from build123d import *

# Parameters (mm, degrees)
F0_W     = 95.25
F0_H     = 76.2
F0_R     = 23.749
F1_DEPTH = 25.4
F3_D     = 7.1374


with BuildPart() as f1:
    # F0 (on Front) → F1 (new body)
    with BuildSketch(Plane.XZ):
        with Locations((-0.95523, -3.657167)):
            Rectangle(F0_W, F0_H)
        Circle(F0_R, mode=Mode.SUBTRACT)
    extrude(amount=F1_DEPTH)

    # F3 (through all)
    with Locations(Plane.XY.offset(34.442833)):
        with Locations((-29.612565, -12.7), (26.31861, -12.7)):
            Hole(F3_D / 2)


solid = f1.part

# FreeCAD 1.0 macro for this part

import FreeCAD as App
import Part
import Sketcher

V = App.Vector
Q = App.Units.Quantity

doc = App.newDocument("Part")
body = doc.addObject("PartDesign::Body", "Body")

sketch1 = body.newObject("Sketcher::SketchObject", "Sketch")
sketch1.AttachmentSupport = (doc.getObject("XZ_Plane"), [""])
sketch1.MapMode = "FlatFace"
sketch1.addGeometry([
    Part.LineSegment(V(-48.58023, 34.442833, 0), V(-48.58023, -41.757167, 0)),
    Part.LineSegment(V(-48.58023, -41.757167, 0), V(46.66977, -41.757167, 0)),
    Part.LineSegment(V(46.66977, -41.757167, 0), V(46.66977, 34.442833, 0)),
    Part.LineSegment(V(46.66977, 34.442833, 0), V(-48.58023, 34.442833, 0)),
    Part.Circle(V(0, 0, 0), V(0, 0, 1), 23.749),
], False)
sketch1.addConstraint([
    Sketcher.Constraint("Coincident", 0, 2, 1, 1),
    Sketcher.Constraint("Coincident", 1, 2, 2, 1),
    Sketcher.Constraint("Coincident", 2, 2, 3, 1),
    Sketcher.Constraint("Coincident", 3, 2, 0, 1),
    Sketcher.Constraint("Vertical", 0),
    Sketcher.Constraint("Horizontal", 1),
    Sketcher.Constraint("Vertical", 2),
    Sketcher.Constraint("Horizontal", 3),
    Sketcher.Constraint("Coincident", 4, 3, -1, 1),
    Sketcher.Constraint("Diameter", 4, Q("1.87 in")),
    Sketcher.Constraint("DistanceY", 0, 2, 0, 1, Q("3 in")),
    Sketcher.Constraint("DistanceX", 1, 1, 1, 2, Q("3.75 in")),
    Sketcher.Constraint("DistanceX", 0, 2, -1, 1, 48.58023),
    Sketcher.Constraint("DistanceY", 0, 2, -1, 1, 41.757167),
])
pad1 = body.newObject("PartDesign::Pad", "Pad")
pad1.Profile = sketch1
pad1.Length = Q("1 in")

sketch2 = body.newObject("Sketcher::SketchObject", "Sketch001")
sketch2.AttachmentSupport = (doc.getObject("XY_Plane"), [""])
sketch2.MapMode = "FlatFace"
sketch2.AttachmentOffset = App.Placement(V(0, 0, 34.442833), App.Rotation())
sketch2.addGeometry([
    Part.Circle(V(-29.612565, -12.7, 0), V(0, 0, 1), 3.5687),
    Part.Circle(V(26.31861, -12.7, 0), V(0, 0, 1), 3.5687),
], False)
sketch2.addConstraint([
    Sketcher.Constraint("Equal", 0, 1),
    Sketcher.Constraint("Horizontal", 0, 3, 1, 3),
    Sketcher.Constraint("Diameter", 0, Q("0.281 in")),
    Sketcher.Constraint("DistanceY", 0, 3, -1, 1, Q("0.5 in")),
    Sketcher.Constraint("DistanceX", -1, 1, 1, 3, 26.31861),
    Sketcher.Constraint("DistanceX", 0, 3, -1, 1, 29.612565),
])
doc.recompute()
hole = body.newObject("PartDesign::Hole", "Hole")
hole.Profile = sketch2
hole.ThreadType = "None"
hole.Diameter = Q("0.281 in")
hole.DepthType = "ThroughAll"

doc.recompute()
